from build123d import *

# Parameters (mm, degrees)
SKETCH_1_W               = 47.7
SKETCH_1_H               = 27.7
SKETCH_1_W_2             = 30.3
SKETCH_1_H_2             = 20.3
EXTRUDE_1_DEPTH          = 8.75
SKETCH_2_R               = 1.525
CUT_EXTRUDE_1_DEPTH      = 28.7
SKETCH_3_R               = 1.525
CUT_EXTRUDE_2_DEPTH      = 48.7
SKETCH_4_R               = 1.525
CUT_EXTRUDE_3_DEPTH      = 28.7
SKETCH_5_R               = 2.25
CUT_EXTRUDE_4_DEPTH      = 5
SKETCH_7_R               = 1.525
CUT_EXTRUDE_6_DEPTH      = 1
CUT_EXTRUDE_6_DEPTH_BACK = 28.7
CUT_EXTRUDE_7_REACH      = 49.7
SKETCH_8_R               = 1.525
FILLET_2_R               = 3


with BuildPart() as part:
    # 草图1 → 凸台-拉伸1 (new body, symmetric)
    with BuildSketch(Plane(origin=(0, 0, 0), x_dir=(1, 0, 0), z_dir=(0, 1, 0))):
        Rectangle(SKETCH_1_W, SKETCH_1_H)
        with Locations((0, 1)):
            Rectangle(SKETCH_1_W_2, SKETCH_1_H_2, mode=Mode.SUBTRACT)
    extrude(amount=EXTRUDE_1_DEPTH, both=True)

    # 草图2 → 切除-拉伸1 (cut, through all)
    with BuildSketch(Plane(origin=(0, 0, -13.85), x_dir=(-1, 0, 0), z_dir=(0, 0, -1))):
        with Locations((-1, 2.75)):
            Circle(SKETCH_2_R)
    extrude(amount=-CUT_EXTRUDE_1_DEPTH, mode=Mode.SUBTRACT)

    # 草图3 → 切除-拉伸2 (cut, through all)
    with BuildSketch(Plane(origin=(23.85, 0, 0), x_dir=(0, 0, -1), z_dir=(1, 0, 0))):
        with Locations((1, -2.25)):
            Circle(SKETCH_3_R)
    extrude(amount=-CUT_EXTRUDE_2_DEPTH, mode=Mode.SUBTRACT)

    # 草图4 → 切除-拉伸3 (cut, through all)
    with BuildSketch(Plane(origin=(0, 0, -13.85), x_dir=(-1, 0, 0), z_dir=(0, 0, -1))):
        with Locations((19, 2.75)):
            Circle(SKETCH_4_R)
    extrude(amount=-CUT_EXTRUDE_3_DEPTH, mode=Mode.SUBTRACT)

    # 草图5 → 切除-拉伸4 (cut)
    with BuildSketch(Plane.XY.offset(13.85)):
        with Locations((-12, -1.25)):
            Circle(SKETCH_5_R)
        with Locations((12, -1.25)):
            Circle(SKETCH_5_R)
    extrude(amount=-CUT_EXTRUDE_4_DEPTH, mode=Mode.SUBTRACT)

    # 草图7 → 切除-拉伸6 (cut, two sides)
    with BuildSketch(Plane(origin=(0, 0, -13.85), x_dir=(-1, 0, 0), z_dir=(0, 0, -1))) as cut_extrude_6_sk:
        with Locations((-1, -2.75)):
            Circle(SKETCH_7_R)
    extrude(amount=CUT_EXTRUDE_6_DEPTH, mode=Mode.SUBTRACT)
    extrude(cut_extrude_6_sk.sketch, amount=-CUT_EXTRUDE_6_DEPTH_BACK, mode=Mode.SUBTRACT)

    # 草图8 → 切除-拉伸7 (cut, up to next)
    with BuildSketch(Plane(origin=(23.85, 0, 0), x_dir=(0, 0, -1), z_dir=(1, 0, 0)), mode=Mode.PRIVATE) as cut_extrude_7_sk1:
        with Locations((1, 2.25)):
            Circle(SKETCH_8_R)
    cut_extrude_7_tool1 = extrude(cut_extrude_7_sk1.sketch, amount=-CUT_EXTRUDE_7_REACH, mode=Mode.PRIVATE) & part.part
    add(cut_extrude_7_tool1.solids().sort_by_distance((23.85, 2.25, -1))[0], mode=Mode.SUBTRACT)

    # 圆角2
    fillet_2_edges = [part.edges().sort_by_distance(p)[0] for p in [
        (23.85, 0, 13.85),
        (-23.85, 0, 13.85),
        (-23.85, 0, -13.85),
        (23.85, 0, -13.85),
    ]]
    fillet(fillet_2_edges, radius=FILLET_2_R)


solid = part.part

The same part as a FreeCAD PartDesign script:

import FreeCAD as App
import Part
import Sketcher


def edges_at(feature, points):
    """Names of the edges that pass closest to the given points."""
    edges = feature.Shape.Edges
    near = lambda p: min(range(len(edges)), key=lambda i: edges[i].distToShape(Part.Vertex(*p))[0])
    return sorted({f"Edge{near(p) + 1}" for p in points})


def add_polygon(sketch, points):
    """Adds a closed chain of lines whose ends are joined by coincident constraints."""
    first, n = sketch.GeometryCount, len(points)
    for a, b in zip(points, points[1:] + points[:1]):
        sketch.addGeometry(Part.LineSegment(App.Vector(*a, 0), App.Vector(*b, 0)), False)
    for i in range(n):
        sketch.addConstraint(Sketcher.Constraint("Coincident", first + i, 2, first + (i + 1) % n, 1))

doc = App.newDocument("Part")
body = doc.addObject("PartDesign::Body", "Body")

# Sketch on XZ plane
sketch1 = doc.addObject("Sketcher::SketchObject", "Sketch")
body.addObject(sketch1)
sketch1.AttachmentSupport = (doc.XZ_Plane, [""])
sketch1.MapMode = "FlatFace"
add_polygon(sketch1, [(-24, -14), (-24, 14), (24, 14), (24, -14)])  # lines 0-3
add_polygon(sketch1, [(15, 9), (-15, 9), (-15, -11), (15, -11)])  # lines 4-7
sketch1.addConstraint([
    Sketcher.Constraint("Vertical", 0),
    Sketcher.Constraint("Horizontal", 1),
    Sketcher.Constraint("Vertical", 2),
    Sketcher.Constraint("Horizontal", 3),
    Sketcher.Constraint("Horizontal", 4),
    Sketcher.Constraint("Vertical", 5),
    Sketcher.Constraint("Horizontal", 6),
    Sketcher.Constraint("Vertical", 7),
    Sketcher.Constraint("Symmetric", 0, 2, 2, 2, -1, 1),
    Sketcher.Constraint("DistanceX", 1, 1, 1, 2, 47.7),
    Sketcher.Constraint("DistanceX", 4, 2, 4, 1, 30.3),
    Sketcher.Constraint("DistanceY", 0, 1, 0, 2, 27.7),
    Sketcher.Constraint("DistanceY", 5, 2, 5, 1, 20.3),
    Sketcher.Constraint("DistanceY", 3, 2, 4, 2, 23.0),
    Sketcher.Constraint("DistanceX", 4, 2, 1, 2, 39.0),
])
pad1 = doc.addObject("PartDesign::Pad", "Pad")
body.addObject(pad1)
pad1.Profile = sketch1
pad1.Length = 17.5
pad1.Midplane = True

# Sketch on XY plane
sketch2 = doc.addObject("Sketcher::SketchObject", "Sketch001")
body.addObject(sketch2)
sketch2.AttachmentSupport = (doc.XY_Plane, [""])
sketch2.MapMode = "FlatFace"
sketch2.AttachmentOffset = App.Placement(App.Vector(0, 0, -13.85), App.Rotation())
sketch2.addGeometry(Part.Circle(App.Vector(1, 2.8, 0), App.Vector(0, 0, 1), 1.5), False)
sketch2.addConstraint([
    Sketcher.Constraint("Diameter", 0, 3.05),
    Sketcher.Constraint("DistanceX", -1, 1, 0, 3, 1.0),
    Sketcher.Constraint("DistanceY", -1, 1, 0, 3, 2.75),
])
pocket1 = doc.addObject("PartDesign::Pocket", "Pocket")
body.addObject(pocket1)
pocket1.Profile = sketch2
pocket1.Type = "ThroughAll"
pocket1.Reversed = True

# Sketch on YZ plane
sketch3 = doc.addObject("Sketcher::SketchObject", "Sketch002")
body.addObject(sketch3)
sketch3.AttachmentSupport = (doc.YZ_Plane, [""])
sketch3.MapMode = "FlatFace"
sketch3.AttachmentOffset = App.Placement(App.Vector(0, 0, 23.85), App.Rotation())
sketch3.addGeometry(Part.Circle(App.Vector(-2.2, -1, 0), App.Vector(0, 0, 1), 1.5), False)
sketch3.addConstraint([
    Sketcher.Constraint("Diameter", 0, 3.05),
    Sketcher.Constraint("DistanceY", 0, 3, -1, 1, 1.0),
    Sketcher.Constraint("DistanceX", 0, 3, -1, 1, 2.25),
])
pocket2 = doc.addObject("PartDesign::Pocket", "Pocket001")
body.addObject(pocket2)
pocket2.Profile = sketch3
pocket2.Type = "ThroughAll"

# Sketch on XY plane
sketch4 = doc.addObject("Sketcher::SketchObject", "Sketch003")
body.addObject(sketch4)
sketch4.AttachmentSupport = (doc.XY_Plane, [""])
sketch4.MapMode = "FlatFace"
sketch4.AttachmentOffset = App.Placement(App.Vector(0, 0, -13.85), App.Rotation())
sketch4.addGeometry(Part.Circle(App.Vector(-19, 2.8, 0), App.Vector(0, 0, 1), 1.5), False)
sketch4.addConstraint([
    Sketcher.Constraint("Diameter", 0, 3.05),
    Sketcher.Constraint("DistanceX", 0, 3, -1, 1, 19.0),
    Sketcher.Constraint("DistanceY", -1, 1, 0, 3, 2.75),
])
pocket3 = doc.addObject("PartDesign::Pocket", "Pocket002")
body.addObject(pocket3)
pocket3.Profile = sketch4
pocket3.Type = "ThroughAll"
pocket3.Reversed = True

# Sketch on XY plane
sketch5 = doc.addObject("Sketcher::SketchObject", "Sketch004")
body.addObject(sketch5)
sketch5.AttachmentSupport = (doc.XY_Plane, [""])
sketch5.MapMode = "FlatFace"
sketch5.AttachmentOffset = App.Placement(App.Vector(0, 0, 13.85), App.Rotation())
sketch5.addGeometry([
    Part.Circle(App.Vector(-12, -1.2, 0), App.Vector(0, 0, 1), 2.2),
    Part.Circle(App.Vector(12, -1.2, 0), App.Vector(0, 0, 1), 2.2),
], False)
sketch5.addConstraint([
    Sketcher.Constraint("Equal", 0, 1),
    Sketcher.Constraint("Symmetric", 0, 3, 1, 3, -2),
    Sketcher.Constraint("Diameter", 0, 4.5),
    Sketcher.Constraint("DistanceX", 0, 3, -1, 1, 12.0),
    Sketcher.Constraint("DistanceY", 0, 3, -1, 1, 1.25),
])
pocket4 = doc.addObject("PartDesign::Pocket", "Pocket003")
body.addObject(pocket4)
pocket4.Profile = sketch5
pocket4.Length = 5

# Sketch on XY plane
sketch6 = doc.addObject("Sketcher::SketchObject", "Sketch005")
body.addObject(sketch6)
sketch6.AttachmentSupport = (doc.XY_Plane, [""])
sketch6.MapMode = "FlatFace"
sketch6.AttachmentOffset = App.Placement(App.Vector(0, 0, -13.85), App.Rotation())
sketch6.addGeometry(Part.Circle(App.Vector(1, -2.8, 0), App.Vector(0, 0, 1), 1.5), False)
sketch6.addConstraint([
    Sketcher.Constraint("Diameter", 0, 3.05),
    Sketcher.Constraint("DistanceX", -1, 1, 0, 3, 1.0),
    Sketcher.Constraint("DistanceY", 0, 3, -1, 1, 2.75),
])
pocket5 = doc.addObject("PartDesign::Pocket", "Pocket004")
body.addObject(pocket5)
pocket5.Profile = sketch6
pocket5.Type = "ThroughAll"
pocket5.Midplane = True

# Sketch on YZ plane
sketch7 = doc.addObject("Sketcher::SketchObject", "Sketch006")
body.addObject(sketch7)
sketch7.AttachmentSupport = (doc.YZ_Plane, [""])
sketch7.MapMode = "FlatFace"
sketch7.AttachmentOffset = App.Placement(App.Vector(0, 0, 23.85), App.Rotation())
sketch7.addGeometry(Part.Circle(App.Vector(2.2, -1, 0), App.Vector(0, 0, 1), 1.5), False)
sketch7.addConstraint([
    Sketcher.Constraint("Diameter", 0, 3.05),
    Sketcher.Constraint("DistanceY", 0, 3, -1, 1, 1.0),
    Sketcher.Constraint("DistanceX", -1, 1, 0, 3, 2.25),
])
pocket6 = doc.addObject("PartDesign::Pocket", "Pocket005")
body.addObject(pocket6)
pocket6.Profile = sketch7
pocket6.Type = "UpToFirst"
doc.recompute()

fillet = doc.addObject("PartDesign::Fillet", "Fillet")
body.addObject(fillet)
fillet.Base = (pocket6, edges_at(pocket6, [
    (23.85, 0, 13.85),
    (-23.85, 0, 13.85),
    (-23.85, 0, -13.85),
    (23.85, 0, -13.85),
]))
fillet.Radius = 3

doc.recompute()
